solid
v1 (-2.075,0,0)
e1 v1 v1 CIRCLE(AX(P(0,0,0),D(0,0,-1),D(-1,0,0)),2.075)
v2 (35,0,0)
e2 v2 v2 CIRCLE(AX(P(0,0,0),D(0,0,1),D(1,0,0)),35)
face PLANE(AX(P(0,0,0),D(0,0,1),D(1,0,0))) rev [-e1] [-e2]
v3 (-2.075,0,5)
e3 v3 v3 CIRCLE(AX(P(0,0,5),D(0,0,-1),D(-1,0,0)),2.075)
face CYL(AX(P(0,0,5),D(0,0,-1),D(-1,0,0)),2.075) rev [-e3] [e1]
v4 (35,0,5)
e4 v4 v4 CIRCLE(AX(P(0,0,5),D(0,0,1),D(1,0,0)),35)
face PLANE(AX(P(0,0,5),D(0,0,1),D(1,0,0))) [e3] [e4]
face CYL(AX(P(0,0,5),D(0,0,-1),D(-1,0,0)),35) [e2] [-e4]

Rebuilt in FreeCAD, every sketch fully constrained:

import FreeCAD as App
import Part
import Sketcher
from FreeCAD import Vector
Q = App.Units.Quantity

doc = App.newDocument("Part")
body = doc.addObject("PartDesign::Body", "Body")

# Sketch on XY plane
sketch1 = body.newObject("Sketcher::SketchObject", "Sketch")
sketch1.AttachmentSupport = (doc.getObject("XY_Plane"), [""])
sketch1.MapMode = "FlatFace"
sketch1.addGeometry(Part.Circle(Vector(0, 0, 0), Vector(0, 0, 1), 35), False)
sketch1.addConstraint([
    Sketcher.Constraint("Coincident", 0, 3, -1, 1),
    Sketcher.Constraint("Diameter", 0, Q("70 mm")),
])
pad1 = body.newObject("PartDesign::Pad", "Pad")
pad1.Profile = sketch1
pad1.Length = 5

# Sketch on XY plane
sketch2 = body.newObject("Sketcher::SketchObject", "Sketch001")
sketch2.AttachmentSupport = (doc.getObject("XY_Plane"), [""])
sketch2.MapMode = "FlatFace"
sketch2.addGeometry(Part.Circle(Vector(0, 0, 0), Vector(0, 0, 1), 2.075), False)
sketch2.addConstraint([
    Sketcher.Constraint("Coincident", 0, 3, -1, 1),
    Sketcher.Constraint("Diameter", 0, Q("4.15 mm")),
])
pocket1 = body.newObject("PartDesign::Pocket", "Pocket")
pocket1.Profile = sketch2
pocket1.Type = "ThroughAll"
pocket1.Reversed = True

doc.recompute()
